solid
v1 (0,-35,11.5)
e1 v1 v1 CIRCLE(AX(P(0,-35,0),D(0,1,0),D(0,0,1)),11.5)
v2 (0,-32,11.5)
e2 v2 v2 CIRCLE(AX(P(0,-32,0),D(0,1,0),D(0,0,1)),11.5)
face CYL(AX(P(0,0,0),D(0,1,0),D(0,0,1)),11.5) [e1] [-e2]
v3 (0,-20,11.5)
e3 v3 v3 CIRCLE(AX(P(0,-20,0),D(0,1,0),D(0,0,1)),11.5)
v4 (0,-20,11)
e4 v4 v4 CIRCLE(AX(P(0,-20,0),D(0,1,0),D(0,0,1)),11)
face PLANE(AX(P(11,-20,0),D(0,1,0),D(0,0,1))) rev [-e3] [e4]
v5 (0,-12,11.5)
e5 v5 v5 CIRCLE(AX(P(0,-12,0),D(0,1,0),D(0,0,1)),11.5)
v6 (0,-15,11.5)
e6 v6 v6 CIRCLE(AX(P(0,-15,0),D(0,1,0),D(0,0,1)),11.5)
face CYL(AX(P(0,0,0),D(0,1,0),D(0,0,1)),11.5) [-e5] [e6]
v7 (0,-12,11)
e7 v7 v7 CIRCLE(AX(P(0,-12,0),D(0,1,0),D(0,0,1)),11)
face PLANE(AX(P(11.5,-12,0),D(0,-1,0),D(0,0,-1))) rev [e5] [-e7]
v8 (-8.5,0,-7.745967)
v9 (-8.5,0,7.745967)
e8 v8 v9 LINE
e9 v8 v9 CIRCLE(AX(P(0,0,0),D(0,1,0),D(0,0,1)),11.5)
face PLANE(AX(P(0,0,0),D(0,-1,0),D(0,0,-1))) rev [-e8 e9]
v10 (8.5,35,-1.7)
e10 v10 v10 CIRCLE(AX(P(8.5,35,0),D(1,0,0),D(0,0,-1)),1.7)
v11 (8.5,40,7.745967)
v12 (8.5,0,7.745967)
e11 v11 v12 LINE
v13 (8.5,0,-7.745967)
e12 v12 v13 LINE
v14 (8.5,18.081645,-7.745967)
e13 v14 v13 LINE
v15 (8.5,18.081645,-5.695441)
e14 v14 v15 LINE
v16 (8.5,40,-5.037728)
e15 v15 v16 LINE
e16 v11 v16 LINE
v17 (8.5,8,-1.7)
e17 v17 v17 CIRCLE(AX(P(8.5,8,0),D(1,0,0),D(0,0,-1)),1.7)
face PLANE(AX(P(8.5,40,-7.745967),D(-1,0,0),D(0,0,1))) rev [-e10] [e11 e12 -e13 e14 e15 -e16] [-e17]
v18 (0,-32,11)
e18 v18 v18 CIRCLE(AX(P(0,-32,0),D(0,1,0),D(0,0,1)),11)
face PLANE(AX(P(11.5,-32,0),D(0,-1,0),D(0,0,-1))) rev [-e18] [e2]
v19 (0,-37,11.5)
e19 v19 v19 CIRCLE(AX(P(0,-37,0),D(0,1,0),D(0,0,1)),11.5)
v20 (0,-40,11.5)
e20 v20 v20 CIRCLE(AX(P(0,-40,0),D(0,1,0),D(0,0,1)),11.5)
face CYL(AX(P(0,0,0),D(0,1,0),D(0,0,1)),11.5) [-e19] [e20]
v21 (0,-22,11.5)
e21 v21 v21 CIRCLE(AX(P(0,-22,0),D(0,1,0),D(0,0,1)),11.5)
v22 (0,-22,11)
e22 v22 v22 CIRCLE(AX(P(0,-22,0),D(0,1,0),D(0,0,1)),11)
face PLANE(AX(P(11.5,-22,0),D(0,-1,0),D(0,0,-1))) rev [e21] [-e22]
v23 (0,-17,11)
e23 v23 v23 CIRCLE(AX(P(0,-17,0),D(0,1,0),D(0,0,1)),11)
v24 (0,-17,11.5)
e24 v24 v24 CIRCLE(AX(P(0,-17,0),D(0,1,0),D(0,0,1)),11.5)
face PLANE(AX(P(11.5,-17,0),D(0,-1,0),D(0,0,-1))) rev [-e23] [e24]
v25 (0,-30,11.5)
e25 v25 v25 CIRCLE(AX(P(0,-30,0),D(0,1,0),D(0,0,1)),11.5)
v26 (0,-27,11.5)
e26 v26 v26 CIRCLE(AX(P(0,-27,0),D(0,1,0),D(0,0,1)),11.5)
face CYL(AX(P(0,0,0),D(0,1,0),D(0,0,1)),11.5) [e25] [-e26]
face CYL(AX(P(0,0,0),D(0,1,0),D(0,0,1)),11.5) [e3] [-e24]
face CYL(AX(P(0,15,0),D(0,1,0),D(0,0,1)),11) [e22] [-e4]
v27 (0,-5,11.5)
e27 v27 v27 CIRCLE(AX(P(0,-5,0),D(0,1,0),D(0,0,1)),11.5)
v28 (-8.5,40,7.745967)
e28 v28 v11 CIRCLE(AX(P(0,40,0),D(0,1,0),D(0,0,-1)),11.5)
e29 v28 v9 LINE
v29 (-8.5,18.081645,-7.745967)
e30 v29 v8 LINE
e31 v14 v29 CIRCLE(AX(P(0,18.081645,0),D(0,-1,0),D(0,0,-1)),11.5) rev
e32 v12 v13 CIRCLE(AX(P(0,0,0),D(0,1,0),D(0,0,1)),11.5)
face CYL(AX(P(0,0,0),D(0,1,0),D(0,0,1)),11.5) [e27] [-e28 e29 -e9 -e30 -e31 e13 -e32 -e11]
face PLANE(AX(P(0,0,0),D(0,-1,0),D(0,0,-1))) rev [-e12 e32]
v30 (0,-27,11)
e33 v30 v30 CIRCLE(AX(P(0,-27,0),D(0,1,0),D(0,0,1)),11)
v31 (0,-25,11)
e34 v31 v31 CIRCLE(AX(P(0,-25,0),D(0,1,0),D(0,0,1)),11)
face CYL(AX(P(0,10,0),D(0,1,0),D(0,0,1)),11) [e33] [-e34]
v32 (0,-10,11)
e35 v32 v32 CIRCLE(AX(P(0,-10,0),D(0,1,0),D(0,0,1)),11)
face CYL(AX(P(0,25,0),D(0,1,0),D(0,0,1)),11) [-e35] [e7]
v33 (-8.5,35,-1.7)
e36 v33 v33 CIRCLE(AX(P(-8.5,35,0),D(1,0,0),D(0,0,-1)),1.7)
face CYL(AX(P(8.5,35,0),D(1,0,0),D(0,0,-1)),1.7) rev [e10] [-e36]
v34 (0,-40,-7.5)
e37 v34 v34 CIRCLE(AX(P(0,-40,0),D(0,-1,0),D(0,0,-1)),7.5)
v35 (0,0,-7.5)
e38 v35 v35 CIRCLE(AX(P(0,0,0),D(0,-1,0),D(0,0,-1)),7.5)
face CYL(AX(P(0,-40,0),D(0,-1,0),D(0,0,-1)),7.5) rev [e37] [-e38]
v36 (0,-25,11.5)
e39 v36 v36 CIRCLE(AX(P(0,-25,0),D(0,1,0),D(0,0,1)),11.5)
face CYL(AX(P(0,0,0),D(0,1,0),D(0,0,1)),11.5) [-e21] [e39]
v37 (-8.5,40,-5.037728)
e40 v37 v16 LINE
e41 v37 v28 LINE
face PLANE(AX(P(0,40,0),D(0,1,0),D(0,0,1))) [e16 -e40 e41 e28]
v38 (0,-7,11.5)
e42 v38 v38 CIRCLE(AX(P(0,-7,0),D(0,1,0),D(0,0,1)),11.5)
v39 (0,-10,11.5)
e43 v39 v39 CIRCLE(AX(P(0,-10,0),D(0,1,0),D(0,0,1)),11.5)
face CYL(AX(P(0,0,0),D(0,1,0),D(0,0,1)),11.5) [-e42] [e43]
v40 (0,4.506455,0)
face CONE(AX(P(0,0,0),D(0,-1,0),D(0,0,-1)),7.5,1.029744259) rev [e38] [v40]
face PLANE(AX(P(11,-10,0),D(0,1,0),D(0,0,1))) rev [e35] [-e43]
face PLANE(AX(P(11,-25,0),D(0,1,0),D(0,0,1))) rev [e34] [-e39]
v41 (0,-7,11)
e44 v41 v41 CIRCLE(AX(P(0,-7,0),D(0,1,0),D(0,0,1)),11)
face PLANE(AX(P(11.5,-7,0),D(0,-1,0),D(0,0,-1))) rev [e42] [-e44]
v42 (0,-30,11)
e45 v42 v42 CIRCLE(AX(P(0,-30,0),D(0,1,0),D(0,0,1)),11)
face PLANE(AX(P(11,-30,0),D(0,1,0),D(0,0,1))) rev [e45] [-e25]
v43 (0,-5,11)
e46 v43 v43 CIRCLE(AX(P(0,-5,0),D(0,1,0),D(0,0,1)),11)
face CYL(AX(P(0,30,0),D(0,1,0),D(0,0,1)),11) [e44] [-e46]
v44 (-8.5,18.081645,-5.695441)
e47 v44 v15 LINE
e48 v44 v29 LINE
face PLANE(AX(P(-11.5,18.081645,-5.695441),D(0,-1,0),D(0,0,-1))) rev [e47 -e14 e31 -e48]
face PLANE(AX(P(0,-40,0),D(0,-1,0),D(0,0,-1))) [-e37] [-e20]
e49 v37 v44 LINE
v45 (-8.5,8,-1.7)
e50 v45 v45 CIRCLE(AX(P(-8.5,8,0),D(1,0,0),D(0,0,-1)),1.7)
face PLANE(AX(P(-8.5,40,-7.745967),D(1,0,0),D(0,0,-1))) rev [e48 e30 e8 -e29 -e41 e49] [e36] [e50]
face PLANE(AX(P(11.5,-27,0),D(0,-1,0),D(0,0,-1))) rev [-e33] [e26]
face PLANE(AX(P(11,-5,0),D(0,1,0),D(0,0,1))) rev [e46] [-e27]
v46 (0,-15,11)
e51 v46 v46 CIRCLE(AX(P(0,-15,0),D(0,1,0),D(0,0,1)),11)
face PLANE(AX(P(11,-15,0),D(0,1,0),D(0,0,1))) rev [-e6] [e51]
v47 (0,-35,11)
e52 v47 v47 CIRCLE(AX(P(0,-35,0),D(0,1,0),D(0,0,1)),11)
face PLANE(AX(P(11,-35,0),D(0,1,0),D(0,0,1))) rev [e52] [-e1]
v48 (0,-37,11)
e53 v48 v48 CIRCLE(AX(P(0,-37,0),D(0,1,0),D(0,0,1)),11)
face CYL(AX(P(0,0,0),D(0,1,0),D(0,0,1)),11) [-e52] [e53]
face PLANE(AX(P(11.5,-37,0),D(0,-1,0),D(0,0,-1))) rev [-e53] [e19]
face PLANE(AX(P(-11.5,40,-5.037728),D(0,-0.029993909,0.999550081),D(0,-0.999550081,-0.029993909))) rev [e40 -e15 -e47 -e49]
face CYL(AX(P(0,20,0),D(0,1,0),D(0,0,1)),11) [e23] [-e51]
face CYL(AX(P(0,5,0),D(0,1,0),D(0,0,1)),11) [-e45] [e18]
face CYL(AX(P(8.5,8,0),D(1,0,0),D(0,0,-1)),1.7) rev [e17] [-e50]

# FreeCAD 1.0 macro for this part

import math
import FreeCAD as App
import Part
import Sketcher

V = App.Vector


def add_polygon(sketch, points):
    """Adds a closed chain of lines whose ends are joined by coincident constraints."""
    first, n = sketch.GeometryCount, len(points)
    for a, b in zip(points, points[1:] + points[:1]):
        sketch.addGeometry(Part.LineSegment(App.Vector(*a, 0), App.Vector(*b, 0)), False)
    for i in range(n):
        sketch.addConstraint(Sketcher.Constraint("Coincident", first + i, 2, first + (i + 1) % n, 1))

doc = App.newDocument("Part")
params = doc.addObject("Spreadsheet::Sheet", "Params")
for row, (alias, value) in enumerate([
    ("sketch1_height", "40 mm"),
    ("sketch1_width", "11.5 mm"),
    ("revolution_angle", "360 deg"),
    ("sketch2_height", "2 mm"),
    ("sketch2_width", "0.5 mm"),
    ("groove_angle", "360 deg"),
    ("linearpattern_pitch", "5 mm"),
    ("sketch3_radius", "11.5 mm"),
    ("pad1_length", "40 mm"),
    ("sketch4_diameter", "15 mm"),
    ("hole_diameter", "15 mm"),
    ("hole_depth", "40 mm"),
    ("sketch5_diameter", "3.4 mm"),
    ("hole2_diameter", "3.4 mm"),
    ("sketch6_diameter", "3.4 mm"),
], start=1):
    params.set(f"A{row}", alias)
    params.set(f"B{row}", "=" + value)
    params.setAlias(f"B{row}", alias)

body = doc.addObject("PartDesign::Body", "Body")

sketch1 = body.newObject("Sketcher::SketchObject", "Sketch")
sketch1.AttachmentSupport = (doc.getObject("XY_Plane"), [""])
sketch1.MapMode = "FlatFace"
add_polygon(sketch1, [(-11.5, 0), (-11.5, -40), (0, -40), (0, 0)])
sketch1.addConstraint([
    Sketcher.Constraint("Vertical", 0),
    Sketcher.Constraint("Horizontal", 1),
    Sketcher.Constraint("Vertical", 2),
    Sketcher.Constraint("Horizontal", 3),
    Sketcher.Constraint("Coincident", 2, 2, -1, 1),
    Sketcher.Constraint("DistanceY", 0, 2, 0, 1, 40.0),
    Sketcher.Constraint("DistanceX", 1, 1, 1, 2, 11.5),
])
sketch1.setExpression("Constraints[9]", "Params.sketch1_height")
sketch1.setExpression("Constraints[10]", "Params.sketch1_width")
revolution = body.newObject("PartDesign::Revolution", "Revolution")
revolution.Profile = sketch1
revolution.ReferenceAxis = (sketch1, ["V_Axis"])
revolution.setExpression("Angle", "Params.revolution_angle")

sketch2 = body.newObject("Sketcher::SketchObject", "Sketch001")
sketch2.AttachmentSupport = (doc.getObject("XY_Plane"), [""])
sketch2.MapMode = "FlatFace"
add_polygon(sketch2, [(11, -35), (11, -37), (11.5, -37), (11.5, -35)])
sketch2.addConstraint([
    Sketcher.Constraint("Vertical", 0),
    Sketcher.Constraint("Horizontal", 1),
    Sketcher.Constraint("Vertical", 2),
    Sketcher.Constraint("Horizontal", 3),
    Sketcher.Constraint("DistanceY", 0, 2, 0, 1, 2.0),
    Sketcher.Constraint("DistanceX", 1, 1, 1, 2, 0.5),
    Sketcher.Constraint("DistanceX", -1, 1, 0, 2, 11.0),
    Sketcher.Constraint("DistanceY", 0, 2, -1, 1, 37.0),
])
sketch2.setExpression("Constraints[8]", "Params.sketch2_height")
sketch2.setExpression("Constraints[9]", "Params.sketch2_width")
groove = body.newObject("PartDesign::Groove", "Groove")
groove.Profile = sketch2
groove.ReferenceAxis = (sketch2, ["V_Axis"])
groove.setExpression("Angle", "Params.groove_angle")
doc.recompute()

linearpattern = body.newObject("PartDesign::LinearPattern", "LinearPattern")
linearpattern.Originals = [groove]
linearpattern.Direction = (doc.getObject("Y_Axis"), [""])
linearpattern.Mode = "offset"
linearpattern.setExpression("Offset", "Params.linearpattern_pitch")
linearpattern.Occurrences = 7
body.Tip = linearpattern

sketch3 = body.newObject("Sketcher::SketchObject", "Sketch002")
sketch3.AttachmentSupport = (doc.getObject("XZ_Plane"), [""])
sketch3.MapMode = "FlatFace"
sketch3.addGeometry([
    Part.LineSegment(V(-8.5, -7.745967, 0), V(-8.5, 7.745967, 0)),
    Part.ArcOfCircle(Part.Circle(V(0, 0, 0), V(0, 0, 1), 11.5), math.radians(42.342605), math.radians(137.657395)),
    Part.LineSegment(V(8.5, 7.745967, 0), V(8.5, -7.745967, 0)),
    Part.ArcOfCircle(Part.Circle(V(0, 0, 0), V(0, 0, 1), 11.5), math.radians(-137.657395), math.radians(-42.342605)),
], False)
sketch3.addConstraint([
    Sketcher.Constraint("Coincident", 0, 2, 1, 2),
    Sketcher.Constraint("Coincident", 1, 1, 2, 1),
    Sketcher.Constraint("Coincident", 2, 2, 3, 2),
    Sketcher.Constraint("Coincident", 3, 1, 0, 1),
    Sketcher.Constraint("Vertical", 0),
    Sketcher.Constraint("Vertical", 2),
    Sketcher.Constraint("Coincident", 1, 3, -1, 1),
    Sketcher.Constraint("Coincident", 3, 3, -1, 1),
    Sketcher.Constraint("Equal", 1, 3),
    Sketcher.Constraint("Horizontal", 0, 2, 1, 1),
    Sketcher.Constraint("Radius", 1, 11.5),
    Sketcher.Constraint("DistanceX", 0, 2, 1, 1, 17.0),
])
sketch3.setExpression("Constraints[10]", "Params.sketch3_radius")
pad1 = body.newObject("PartDesign::Pad", "Pad")
pad1.Profile = sketch3
pad1.setExpression("Length", "Params.pad1_length")
pad1.Reversed = True

sketch4 = body.newObject("Sketcher::SketchObject", "Sketch003")
sketch4.AttachmentSupport = (doc.getObject("XZ_Plane"), [""])
sketch4.MapMode = "FlatFace"
sketch4.AttachmentOffset = App.Placement(V(0, 0, 40), App.Rotation())
sketch4.addGeometry(Part.Circle(V(0, 0, 0), V(0, 0, 1), 7.5), False)
sketch4.addConstraint([
    Sketcher.Constraint("Coincident", 0, 3, -1, 1),
    Sketcher.Constraint("Diameter", 0, 15.0),
])
sketch4.setExpression("Constraints[1]", "Params.sketch4_diameter")
doc.recompute()
hole = body.newObject("PartDesign::Hole", "Hole")
hole.Profile = sketch4
hole.ThreadType = "None"
hole.setExpression("Diameter", "Params.hole_diameter")
hole.DepthType = "Dimension"
hole.setExpression("Depth", "Params.hole_depth")
hole.DrillPoint = "Angled"
hole.DrillPointAngle = 118

sketch5 = body.newObject("Sketcher::SketchObject", "Sketch004")
sketch5.AttachmentSupport = (doc.getObject("YZ_Plane"), [""])
sketch5.MapMode = "FlatFace"
sketch5.AttachmentOffset = App.Placement(V(0, 0, 8.5), App.Rotation())
sketch5.addGeometry([
    Part.Circle(V(8, 0, 0), V(0, 0, 1), 1.7),
    Part.Circle(V(35, 0, 0), V(0, 0, 1), 1.7),
], False)
sketch5.addConstraint([
    Sketcher.Constraint("Equal", 0, 1),
    Sketcher.Constraint("PointOnObject", 0, 3, -1),
    Sketcher.Constraint("PointOnObject", 1, 3, -1),
    Sketcher.Constraint("Diameter", 0, 3.4),
    Sketcher.Constraint("DistanceX", -1, 1, 0, 3, 8.0),
    Sketcher.Constraint("DistanceX", -1, 1, 1, 3, 35.0),
])
sketch5.setExpression("Constraints[3]", "Params.sketch5_diameter")
doc.recompute()
hole2 = body.newObject("PartDesign::Hole", "Hole001")
hole2.Profile = sketch5
hole2.ThreadType = "None"
hole2.setExpression("Diameter", "Params.hole2_diameter")
hole2.DepthType = "ThroughAll"

sketch6 = body.newObject("Sketcher::SketchObject", "Sketch005")
sketch6.AttachmentSupport = (doc.getObject("YZ_Plane"), [""])
sketch6.MapMode = "FlatFace"
sketch6.addGeometry(Part.Circle(V(8, 0, 0), V(0, 0, 1), 1.7), False)
sketch6.addGeometry(Part.Circle(V(35, 0, 0), V(0, 0, 1), 1.7), False)
add_polygon(sketch6, [(40, -5.037728), (18.081645, -5.695441), (18.081645, -11.5), (40, -11.5), (40, -7.745967)])
sketch6.addConstraint([
    Sketcher.Constraint("Vertical", 3),
    Sketcher.Constraint("Horizontal", 4),
    Sketcher.Constraint("Vertical", 5),
    Sketcher.Constraint("Vertical", 6),
    Sketcher.Constraint("Equal", 0, 1),
    Sketcher.Constraint("PointOnObject", 0, 3, -1),
    Sketcher.Constraint("PointOnObject", 1, 3, -1),
    Sketcher.Constraint("Diameter", 0, 3.4),
    Sketcher.Constraint("DistanceX", -1, 1, 0, 3, 8.0),
    Sketcher.Constraint("DistanceX", -1, 1, 1, 3, 35.0),
    Sketcher.Constraint("DistanceX", -1, 1, 4, 2, 40.0),
    Sketcher.Constraint("DistanceY", 3, 2, -1, 1, 11.5),
    Sketcher.Constraint("DistanceY", 3, 2, 3, 1, 5.804559),
    Sketcher.Constraint("DistanceY", 6, 1, 6, 2, 2.708239),
    Sketcher.Constraint("Distance", 2, 21.928221),
    Sketcher.Constraint("DistanceX", 4, 1, 4, 2, 21.918355),
])
sketch6.setExpression("Constraints[12]", "Params.sketch6_diameter")
pocket1 = body.newObject("PartDesign::Pocket", "Pocket")
pocket1.Profile = sketch6
pocket1.Type = "ThroughAll"
pocket1.Midplane = True

doc.recompute()
